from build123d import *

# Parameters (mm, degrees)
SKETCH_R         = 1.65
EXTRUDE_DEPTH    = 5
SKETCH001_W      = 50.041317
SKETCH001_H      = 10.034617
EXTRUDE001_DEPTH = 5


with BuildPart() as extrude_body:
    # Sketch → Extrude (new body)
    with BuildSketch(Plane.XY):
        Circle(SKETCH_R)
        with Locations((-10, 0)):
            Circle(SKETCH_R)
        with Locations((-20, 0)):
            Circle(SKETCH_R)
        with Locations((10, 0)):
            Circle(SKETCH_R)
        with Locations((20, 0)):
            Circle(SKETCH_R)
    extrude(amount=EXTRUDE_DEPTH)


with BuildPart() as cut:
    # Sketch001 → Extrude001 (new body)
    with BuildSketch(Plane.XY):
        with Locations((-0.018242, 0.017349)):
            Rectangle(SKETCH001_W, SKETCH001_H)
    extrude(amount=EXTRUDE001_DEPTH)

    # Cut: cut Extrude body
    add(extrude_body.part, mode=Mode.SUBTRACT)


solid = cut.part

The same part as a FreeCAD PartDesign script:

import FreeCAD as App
import Part
import Sketcher
Q = App.Units.Quantity


def add_polygon(sketch, points):
    """Adds a closed chain of lines whose ends are joined by coincident constraints."""
    first, n = sketch.GeometryCount, len(points)
    for a, b in zip(points, points[1:] + points[:1]):
        sketch.addGeometry(Part.LineSegment(App.Vector(*a, 0), App.Vector(*b, 0)), False)
    for i in range(n):
        sketch.addConstraint(Sketcher.Constraint("Coincident", first + i, 2, first + (i + 1) % n, 1))

doc = App.newDocument("Part")
body = doc.addObject("PartDesign::Body", "Body")
body.AllowCompound = True

sketch1 = body.newObject("Sketcher::SketchObject", "Sketch")
sketch1.AttachmentSupport = (doc.getObject("XY_Plane"), [""])
sketch1.MapMode = "FlatFace"
sketch1.addGeometry([
    Part.Circle(App.Vector(0, 0, 0), App.Vector(0, 0, 1), 1.65),
    Part.Circle(App.Vector(-10, 0, 0), App.Vector(0, 0, 1), 1.65),
    Part.Circle(App.Vector(-20, 0, 0), App.Vector(0, 0, 1), 1.65),
    Part.Circle(App.Vector(10, 0, 0), App.Vector(0, 0, 1), 1.65),
    Part.Circle(App.Vector(20, 0, 0), App.Vector(0, 0, 1), 1.65),
], False)
sketch1.addConstraint([
    Sketcher.Constraint("Coincident", 0, 3, -1, 1),
    Sketcher.Constraint("Equal", 0, 1),
    Sketcher.Constraint("Equal", 1, 2),
    Sketcher.Constraint("Equal", 2, 3),
    Sketcher.Constraint("Equal", 3, 4),
    Sketcher.Constraint("Symmetric", 1, 3, 3, 3, -1, 1),
    Sketcher.Constraint("Symmetric", 2, 3, 4, 3, -1, 1),
    Sketcher.Constraint("PointOnObject", 1, 3, -1),
    Sketcher.Constraint("PointOnObject", 2, 3, -1),
    Sketcher.Constraint("Diameter", 0, Q("3.3 mm")),
    Sketcher.Constraint("DistanceX", 1, 3, -1, 1, Q("10 mm")),
    Sketcher.Constraint("DistanceX", 2, 3, -1, 1, Q("20 mm")),
])
pad1 = body.newObject("PartDesign::Pad", "Pad")
pad1.Profile = sketch1
pad1.Length = 5
body2 = doc.addObject("PartDesign::Body", "Body001")

sketch2 = body2.newObject("Sketcher::SketchObject", "Sketch001")
sketch2.AttachmentSupport = (doc.getObject("XY_Plane001"), [""])
sketch2.MapMode = "FlatFace"
add_polygon(sketch2, [(-25.038901, 5.034657), (-25.038901, -4.99996), (25.002416, -4.99996), (25.002416, 5.034657)])
sketch2.addConstraint([
    Sketcher.Constraint("Vertical", 0),
    Sketcher.Constraint("Horizontal", 1),
    Sketcher.Constraint("Vertical", 2),
    Sketcher.Constraint("Horizontal", 3),
    Sketcher.Constraint("DistanceX", 0, 2, -1, 1, Q("25.038901 mm")),
    Sketcher.Constraint("DistanceX", 1, 1, 1, 2, Q("50.041317 mm")),
    Sketcher.Constraint("DistanceY", 0, 2, 0, 1, Q("10.034617 mm")),
    Sketcher.Constraint("DistanceY", 0, 2, -1, 1, Q("4.99996 mm")),
])
pad2 = body2.newObject("PartDesign::Pad", "Pad001")
pad2.Profile = sketch2
pad2.Length = 5
doc.recompute()

boolean = body2.newObject("PartDesign::Boolean", "Boolean")
boolean.Type = "Cut"
boolean.addObjects([body])

doc.recompute()
